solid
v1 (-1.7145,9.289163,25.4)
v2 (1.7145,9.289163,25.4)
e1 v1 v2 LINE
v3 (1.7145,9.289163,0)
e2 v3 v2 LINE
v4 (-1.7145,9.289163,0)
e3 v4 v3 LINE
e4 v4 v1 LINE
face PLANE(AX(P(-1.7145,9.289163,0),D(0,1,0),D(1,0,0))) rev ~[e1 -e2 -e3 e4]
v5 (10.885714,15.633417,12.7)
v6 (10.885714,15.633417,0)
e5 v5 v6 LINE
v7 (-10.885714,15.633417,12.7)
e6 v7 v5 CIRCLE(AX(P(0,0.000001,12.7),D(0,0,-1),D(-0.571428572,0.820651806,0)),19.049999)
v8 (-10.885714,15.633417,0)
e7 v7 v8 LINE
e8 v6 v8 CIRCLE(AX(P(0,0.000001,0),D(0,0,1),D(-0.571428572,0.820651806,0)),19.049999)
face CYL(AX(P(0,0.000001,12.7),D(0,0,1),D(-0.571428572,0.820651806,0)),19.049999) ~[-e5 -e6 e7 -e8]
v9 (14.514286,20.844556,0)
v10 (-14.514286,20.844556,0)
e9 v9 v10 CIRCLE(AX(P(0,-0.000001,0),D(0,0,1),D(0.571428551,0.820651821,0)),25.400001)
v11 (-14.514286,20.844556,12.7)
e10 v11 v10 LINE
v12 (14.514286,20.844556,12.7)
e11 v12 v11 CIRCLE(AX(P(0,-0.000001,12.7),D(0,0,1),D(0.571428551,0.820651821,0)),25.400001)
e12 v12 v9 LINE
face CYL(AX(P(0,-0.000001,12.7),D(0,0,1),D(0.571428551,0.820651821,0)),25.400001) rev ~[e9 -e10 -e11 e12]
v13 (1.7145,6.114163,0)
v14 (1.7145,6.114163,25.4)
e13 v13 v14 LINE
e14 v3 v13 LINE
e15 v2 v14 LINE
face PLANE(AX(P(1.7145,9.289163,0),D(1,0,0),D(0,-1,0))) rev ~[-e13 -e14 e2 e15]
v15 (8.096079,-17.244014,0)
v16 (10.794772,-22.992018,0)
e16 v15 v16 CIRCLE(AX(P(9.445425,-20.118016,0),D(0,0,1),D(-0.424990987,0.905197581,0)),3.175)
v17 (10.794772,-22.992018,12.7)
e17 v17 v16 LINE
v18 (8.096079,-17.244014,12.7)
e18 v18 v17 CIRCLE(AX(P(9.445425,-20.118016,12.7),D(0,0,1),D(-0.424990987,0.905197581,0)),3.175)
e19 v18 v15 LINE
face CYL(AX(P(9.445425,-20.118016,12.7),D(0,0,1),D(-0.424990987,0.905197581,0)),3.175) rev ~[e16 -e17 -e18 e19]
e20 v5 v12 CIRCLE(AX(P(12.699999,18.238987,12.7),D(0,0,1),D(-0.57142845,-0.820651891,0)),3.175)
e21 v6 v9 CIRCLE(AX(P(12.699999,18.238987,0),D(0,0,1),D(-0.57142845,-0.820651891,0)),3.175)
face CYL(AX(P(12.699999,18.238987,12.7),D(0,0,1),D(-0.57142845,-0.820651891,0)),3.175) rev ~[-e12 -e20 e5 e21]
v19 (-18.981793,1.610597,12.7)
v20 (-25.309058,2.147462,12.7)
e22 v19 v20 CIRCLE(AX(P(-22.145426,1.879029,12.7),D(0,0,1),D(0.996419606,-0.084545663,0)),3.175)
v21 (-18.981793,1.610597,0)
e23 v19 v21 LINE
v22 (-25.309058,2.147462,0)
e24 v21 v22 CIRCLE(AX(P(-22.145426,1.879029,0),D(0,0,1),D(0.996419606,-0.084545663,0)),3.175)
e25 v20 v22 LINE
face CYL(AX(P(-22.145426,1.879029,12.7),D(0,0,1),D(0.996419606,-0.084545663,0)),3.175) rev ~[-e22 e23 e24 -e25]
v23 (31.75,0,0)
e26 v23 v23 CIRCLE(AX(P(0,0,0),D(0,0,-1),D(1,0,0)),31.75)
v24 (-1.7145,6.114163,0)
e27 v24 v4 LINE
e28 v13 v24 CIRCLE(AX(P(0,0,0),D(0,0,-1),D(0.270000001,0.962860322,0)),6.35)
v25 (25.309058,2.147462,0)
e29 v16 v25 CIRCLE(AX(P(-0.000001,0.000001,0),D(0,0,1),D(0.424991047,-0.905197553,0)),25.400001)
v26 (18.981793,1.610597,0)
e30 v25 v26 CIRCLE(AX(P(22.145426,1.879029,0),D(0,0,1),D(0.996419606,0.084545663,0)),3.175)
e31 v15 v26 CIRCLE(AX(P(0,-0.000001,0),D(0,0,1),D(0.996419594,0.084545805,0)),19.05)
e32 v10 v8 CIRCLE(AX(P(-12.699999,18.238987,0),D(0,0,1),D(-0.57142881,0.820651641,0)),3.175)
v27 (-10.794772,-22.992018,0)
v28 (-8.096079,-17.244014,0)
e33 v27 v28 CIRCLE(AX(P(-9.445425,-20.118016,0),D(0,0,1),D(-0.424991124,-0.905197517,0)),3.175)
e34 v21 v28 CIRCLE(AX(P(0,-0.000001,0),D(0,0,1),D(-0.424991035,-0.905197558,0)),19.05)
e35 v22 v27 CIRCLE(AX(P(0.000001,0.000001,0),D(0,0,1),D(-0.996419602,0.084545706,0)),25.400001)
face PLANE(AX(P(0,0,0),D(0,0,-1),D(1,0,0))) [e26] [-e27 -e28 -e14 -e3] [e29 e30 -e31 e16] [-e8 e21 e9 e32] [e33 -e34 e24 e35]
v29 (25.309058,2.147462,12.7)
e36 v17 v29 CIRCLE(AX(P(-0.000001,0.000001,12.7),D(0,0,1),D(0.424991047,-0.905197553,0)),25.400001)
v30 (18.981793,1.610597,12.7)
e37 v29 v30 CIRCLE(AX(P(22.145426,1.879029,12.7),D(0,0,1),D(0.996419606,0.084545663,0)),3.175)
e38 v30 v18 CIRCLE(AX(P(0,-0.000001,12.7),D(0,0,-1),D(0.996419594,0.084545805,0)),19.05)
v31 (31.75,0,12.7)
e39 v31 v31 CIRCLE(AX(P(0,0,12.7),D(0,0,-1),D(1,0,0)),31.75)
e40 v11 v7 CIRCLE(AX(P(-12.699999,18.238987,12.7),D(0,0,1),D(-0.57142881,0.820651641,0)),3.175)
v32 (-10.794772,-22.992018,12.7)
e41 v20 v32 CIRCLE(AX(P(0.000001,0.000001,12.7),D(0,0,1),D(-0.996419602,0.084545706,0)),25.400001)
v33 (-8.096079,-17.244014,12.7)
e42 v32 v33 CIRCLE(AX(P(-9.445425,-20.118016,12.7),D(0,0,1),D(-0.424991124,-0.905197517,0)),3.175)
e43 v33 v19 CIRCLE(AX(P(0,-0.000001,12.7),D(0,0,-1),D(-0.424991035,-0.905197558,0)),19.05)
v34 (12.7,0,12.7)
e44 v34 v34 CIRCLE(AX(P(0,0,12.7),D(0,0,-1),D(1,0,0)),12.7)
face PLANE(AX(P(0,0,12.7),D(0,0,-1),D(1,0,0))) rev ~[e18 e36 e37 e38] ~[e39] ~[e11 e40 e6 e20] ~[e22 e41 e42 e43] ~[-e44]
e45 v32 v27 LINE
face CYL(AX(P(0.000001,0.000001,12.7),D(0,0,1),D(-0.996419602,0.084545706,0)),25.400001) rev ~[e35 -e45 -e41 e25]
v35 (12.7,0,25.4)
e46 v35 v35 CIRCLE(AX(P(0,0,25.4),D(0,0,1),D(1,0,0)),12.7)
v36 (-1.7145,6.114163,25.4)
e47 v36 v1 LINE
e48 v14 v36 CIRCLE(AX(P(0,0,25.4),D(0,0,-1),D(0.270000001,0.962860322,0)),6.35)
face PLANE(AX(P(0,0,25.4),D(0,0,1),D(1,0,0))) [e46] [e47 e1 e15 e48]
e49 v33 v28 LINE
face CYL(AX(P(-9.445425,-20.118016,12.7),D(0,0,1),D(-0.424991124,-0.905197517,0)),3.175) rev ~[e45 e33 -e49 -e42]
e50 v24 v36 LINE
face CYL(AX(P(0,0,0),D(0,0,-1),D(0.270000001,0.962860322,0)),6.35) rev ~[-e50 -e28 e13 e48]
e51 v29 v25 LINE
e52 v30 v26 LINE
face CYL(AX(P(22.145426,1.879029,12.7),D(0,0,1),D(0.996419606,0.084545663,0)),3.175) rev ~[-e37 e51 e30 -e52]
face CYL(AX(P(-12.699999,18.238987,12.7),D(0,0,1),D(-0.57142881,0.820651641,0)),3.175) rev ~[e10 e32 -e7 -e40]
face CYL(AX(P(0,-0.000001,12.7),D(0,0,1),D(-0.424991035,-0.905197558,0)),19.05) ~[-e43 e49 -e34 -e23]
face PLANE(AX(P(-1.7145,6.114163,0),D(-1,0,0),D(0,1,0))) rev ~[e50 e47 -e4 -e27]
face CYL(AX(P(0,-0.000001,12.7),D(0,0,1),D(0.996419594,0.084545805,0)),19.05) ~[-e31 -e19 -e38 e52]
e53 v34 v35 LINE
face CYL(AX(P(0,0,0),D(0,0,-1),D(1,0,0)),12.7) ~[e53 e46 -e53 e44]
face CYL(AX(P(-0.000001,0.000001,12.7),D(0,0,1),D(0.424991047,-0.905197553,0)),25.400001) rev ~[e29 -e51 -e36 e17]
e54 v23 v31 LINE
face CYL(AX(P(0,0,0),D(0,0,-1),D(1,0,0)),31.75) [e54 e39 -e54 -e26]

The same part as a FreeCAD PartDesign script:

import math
import FreeCAD as App
import Part
import Sketcher

V = App.Vector
Q = App.Units.Quantity

doc = App.newDocument("Part")
params = doc.addObject("Spreadsheet::Sheet", "Params")
for row, (alias, value) in enumerate([
    ("sketch1_diameter", "1 in"),
    ("sketch1_radius", "0.25 in"),
    ("sketch1_width", "0.135 in"),
    ("sketch1_height", "0.125 in"),
    ("pad1_length", "1 in"),
    ("sketch2_diameter", "1 in"),
    ("sketch2_diameter2", "2.5 in"),
    ("pad2_length", "0.5 in"),
    ("sketch3_radius", "1.0000001 in"),
    ("sketch3_radius2", "1 in"),
    ("sketch3_radius3", "1 in"),
    ("sketch3_radius4", "0.75 in"),
    ("sketch3_radius5", "0.75 in"),
    ("pocket1_length", "1 in"),
], start=1):
    params.set(f"A{row}", alias)
    params.set(f"B{row}", "=" + value)
    params.setAlias(f"B{row}", alias)

body = doc.addObject("PartDesign::Body", "Body")

# Sketch on XY plane
sketch1 = body.newObject("Sketcher::SketchObject", "Sketch")
sketch1.AttachmentSupport = (doc.getObject("XY_Plane"), [""])
sketch1.MapMode = "FlatFace"
sketch1.addGeometry(Part.Circle(V(0, 0, 0), V(0, 0, 1), 12.7), False)
sketch1.addGeometry(Part.LineSegment(V(1.7, 9.3, 0), V(1.7, 6.1, 0)), False)
sketch1.addGeometry(Part.ArcOfCircle(Part.Circle(V(0, 0, 0), V(0, 0, 1), 6.3), math.radians(106), math.radians(434)), False)
sketch1.addGeometry(Part.LineSegment(V(-1.7, 6.1, 0), V(-1.7, 9.3, 0)), False)
sketch1.addGeometry(Part.LineSegment(V(-1.7, 9.3, 0), V(1.7, 9.3, 0)), False)
sketch1.addConstraint(Sketcher.Constraint("Coincident", 1, 2, 2, 2))
sketch1.addConstraint(Sketcher.Constraint("Coincident", 2, 1, 3, 1))
sketch1.addConstraint(Sketcher.Constraint("Coincident", 3, 2, 4, 1))
sketch1.addConstraint(Sketcher.Constraint("Coincident", 4, 2, 1, 1))
sketch1.addConstraint(Sketcher.Constraint("Vertical", 1))
sketch1.addConstraint(Sketcher.Constraint("Vertical", 3))
sketch1.addConstraint(Sketcher.Constraint("Horizontal", 4))
sketch1.addConstraint(Sketcher.Constraint("Coincident", 0, 3, -1, 1))
sketch1.addConstraint(Sketcher.Constraint("Coincident", 2, 3, -1, 1))
sketch1.addConstraint(Sketcher.Constraint("Horizontal", 1, 2, 2, 1))
sketch1.addConstraint(Sketcher.Constraint("Diameter", 0, Q("1 in")))
sketch1.addConstraint(Sketcher.Constraint("Radius", 2, Q("0.25 in")))
sketch1.addConstraint(Sketcher.Constraint("DistanceX", 4, 1, 4, 2, Q("0.135 in")))
sketch1.addConstraint(Sketcher.Constraint("DistanceY", 1, 2, 1, 1, Q("0.125 in")))
sketch1.setExpression("Constraints[10]", "Params.sketch1_diameter")
sketch1.setExpression("Constraints[11]", "Params.sketch1_radius")
sketch1.setExpression("Constraints[12]", "Params.sketch1_width")
sketch1.setExpression("Constraints[13]", "Params.sketch1_height")
pad1 = body.newObject("PartDesign::Pad", "Pad")
pad1.Profile = sketch1
pad1.setExpression("Length", "Params.pad1_length")

# Sketch on XY plane
sketch2 = body.newObject("Sketcher::SketchObject", "Sketch001")
sketch2.AttachmentSupport = (doc.getObject("XY_Plane"), [""])
sketch2.MapMode = "FlatFace"
sketch2.addGeometry(Part.Circle(V(0, 0, 0), V(0, 0, 1), 32), False)
sketch2.addGeometry(Part.Circle(V(0, 0, 0), V(0, 0, 1), 13), False)
sketch2.addConstraint(Sketcher.Constraint("Coincident", 0, 3, -1, 1))
sketch2.addConstraint(Sketcher.Constraint("Coincident", 1, 3, -1, 1))
sketch2.addConstraint(Sketcher.Constraint("Diameter", 1, Q("1 in")))
sketch2.addConstraint(Sketcher.Constraint("Diameter", 0, Q("2.5 in")))
sketch2.setExpression("Constraints[2]", "Params.sketch2_diameter")
sketch2.setExpression("Constraints[3]", "Params.sketch2_diameter2")
pad2 = body.newObject("PartDesign::Pad", "Pad001")
pad2.Profile = sketch2
pad2.setExpression("Length", "Params.pad2_length")

# Sketch on XY plane
sketch3 = body.newObject("Sketcher::SketchObject", "Sketch002")
sketch3.AttachmentSupport = (doc.getObject("XY_Plane"), [""])
sketch3.MapMode = "FlatFace"
sketch3.AttachmentOffset = App.Placement(V(0, 0, 0.5 * 25.4), App.Rotation())
sketch3.addGeometry(Part.ArcOfCircle(Part.Circle(V(-12.699999, 18.238987, 0), V(0, 0, 1), 3.175), math.radians(124.849921), math.radians(304.849896)), False)
sketch3.addGeometry(Part.ArcOfCircle(Part.Circle(V(0, 0.000001, 0), V(0, 0, 1), 19.049999), math.radians(55.150095), math.radians(124.849905)), False)
sketch3.addGeometry(Part.ArcOfCircle(Part.Circle(V(12.699999, 18.238987, 0), V(0, 0, 1), 3.175), math.radians(-124.849896), math.radians(55.150079)), False)
sketch3.addGeometry(Part.ArcOfCircle(Part.Circle(V(0, -0.000001, 0), V(0, 0, 1), 25.400001), math.radians(55.150097), math.radians(124.849903)), False)
sketch3.addGeometry(Part.ArcOfCircle(Part.Circle(V(-9.445425, -20.118016, 0), V(0, 0, 1), 3.175), math.radians(-115.150102), math.radians(64.849907)), False)
sketch3.addGeometry(Part.ArcOfCircle(Part.Circle(V(0, -0.000001, 0), V(0, 0, 1), 19.05), math.radians(175.150093), math.radians(244.849904)), False)
sketch3.addGeometry(Part.ArcOfCircle(Part.Circle(V(-22.145426, 1.879029, 0), V(0, 0, 1), 3.175), math.radians(-4.849899), math.radians(175.150101)), False)
sketch3.addGeometry(Part.ArcOfCircle(Part.Circle(V(0.000001, 0.000001, 0), V(0, 0, 1), 25.400001), math.radians(175.150098), math.radians(244.849903)), False)
sketch3.addGeometry(Part.ArcOfCircle(Part.Circle(V(22.145426, 1.879029, 0), V(0, 0, 1), 3.175), math.radians(4.849899), math.radians(184.849899)), False)
sketch3.addGeometry(Part.ArcOfCircle(Part.Circle(V(0, -0.000001, 0), V(0, 0, 1), 19.05), math.radians(-64.849904), math.radians(4.849907)), False)
sketch3.addGeometry(Part.ArcOfCircle(Part.Circle(V(9.445425, -20.118016, 0), V(0, 0, 1), 3.175), math.radians(115.150093), math.radians(295.150102)), False)
sketch3.addGeometry(Part.ArcOfCircle(Part.Circle(V(-0.000001, 0.000001, 0), V(0, 0, 1), 25.400001), math.radians(-64.849903), math.radians(4.849902)), False)
sketch3.addConstraint(Sketcher.Constraint("Coincident", 0, 2, 1, 2))
sketch3.addConstraint(Sketcher.Constraint("Coincident", 1, 1, 2, 1))
sketch3.addConstraint(Sketcher.Constraint("Coincident", 2, 2, 3, 1))
sketch3.addConstraint(Sketcher.Constraint("Coincident", 3, 2, 0, 1))
sketch3.addConstraint(Sketcher.Constraint("Coincident", 4, 2, 5, 2))
sketch3.addConstraint(Sketcher.Constraint("Coincident", 5, 1, 6, 1))
sketch3.addConstraint(Sketcher.Constraint("Coincident", 6, 2, 7, 1))
sketch3.addConstraint(Sketcher.Constraint("Coincident", 7, 2, 4, 1))
sketch3.addConstraint(Sketcher.Constraint("Coincident", 8, 2, 9, 2))
sketch3.addConstraint(Sketcher.Constraint("Coincident", 9, 1, 10, 1))
sketch3.addConstraint(Sketcher.Constraint("Coincident", 10, 2, 11, 1))
sketch3.addConstraint(Sketcher.Constraint("Coincident", 11, 2, 8, 1))
sketch3.addConstraint(Sketcher.Constraint("Coincident", 1, 3, -1, 1))
sketch3.addConstraint(Sketcher.Constraint("Coincident", 3, 3, -1, 1))
sketch3.addConstraint(Sketcher.Constraint("Coincident", 5, 3, -1, 1))
sketch3.addConstraint(Sketcher.Constraint("Coincident", 7, 3, -1, 1))
sketch3.addConstraint(Sketcher.Constraint("Coincident", 9, 3, -1, 1))
sketch3.addConstraint(Sketcher.Constraint("Coincident", 11, 3, -1, 1))
sketch3.addConstraint(Sketcher.Constraint("Radius", 3, Q("1.0000001 in")))
sketch3.addConstraint(Sketcher.Constraint("Radius", 7, Q("1 in")))
sketch3.addConstraint(Sketcher.Constraint("Radius", 11, Q("1 in")))
sketch3.addConstraint(Sketcher.Constraint("Radius", 1, Q("0.75 in")))
sketch3.addConstraint(Sketcher.Constraint("Radius", 5, Q("0.75 in")))
sketch3.addConstraint(Sketcher.Constraint("Radius", 9, Q("0.75 in")))
sketch3.addConstraint(Sketcher.Constraint("DistanceX", 0, 3, 2, 3, Q("1 in")))
sketch3.addConstraint(Sketcher.Constraint("DistanceX", 0, 3, -1, 1, Q("0.5 in")))
sketch3.addConstraint(Sketcher.Constraint("DistanceX", 6, 3, 4, 3, Q("0.5 in")))
sketch3.addConstraint(Sketcher.Constraint("DistanceY", 7, 2, 4, 3, 2.874002))
sketch3.addConstraint(Sketcher.Constraint("DistanceY", 7, 2, 10, 3, 2.874002))
sketch3.addConstraint(Sketcher.Constraint("DistanceY", 10, 2, 10, 3, 2.874002))
sketch3.addConstraint(Sketcher.Constraint("DistanceY", -1, 1, 6, 3, 1.879029))
sketch3.addConstraint(Sketcher.Constraint("DistanceY", -1, 1, 8, 3, 1.879029))
sketch3.addConstraint(Sketcher.Constraint("DistanceX", 4, 2, -1, 1, 8.096079))
sketch3.addConstraint(Sketcher.Constraint("DistanceY", -1, 1, 6, 2, 2.147462))
sketch3.addConstraint(Sketcher.Constraint("DistanceX", -1, 1, 9, 1, 8.096079))
sketch3.addConstraint(Sketcher.Constraint("DistanceY", -1, 1, 11, 2, 2.147462))
sketch3.addConstraint(Sketcher.Constraint("DistanceY", 0, 2, 0, 3, 2.60557))
sketch3.addConstraint(Sketcher.Constraint("DistanceY", 1, 1, 2, 3, 2.60557))
sketch3.addConstraint(Sketcher.Constraint("DistanceY", 2, 3, 2, 2, 2.605569))
sketch3.addConstraint(Sketcher.Constraint("DistanceY", 0, 3, 3, 2, 2.605569))
sketch3.addConstraint(Sketcher.Constraint("DistanceX", 5, 1, 0, 2, 8.096079))
sketch3.addConstraint(Sketcher.Constraint("DistanceX", 1, 1, 8, 2, 8.096079))
sketch3.setExpression("Constraints[18]", "Params.sketch3_radius")
sketch3.setExpression("Constraints[19]", "Params.sketch3_radius2")
sketch3.setExpression("Constraints[20]", "Params.sketch3_radius3")
sketch3.setExpression("Constraints[21]", "Params.sketch3_radius4")
sketch3.setExpression("Constraints[22]", "Params.sketch3_radius5")
pocket1 = body.newObject("PartDesign::Pocket", "Pocket")
pocket1.Profile = sketch3
pocket1.setExpression("Length", "Params.pocket1_length")

doc.recompute()
